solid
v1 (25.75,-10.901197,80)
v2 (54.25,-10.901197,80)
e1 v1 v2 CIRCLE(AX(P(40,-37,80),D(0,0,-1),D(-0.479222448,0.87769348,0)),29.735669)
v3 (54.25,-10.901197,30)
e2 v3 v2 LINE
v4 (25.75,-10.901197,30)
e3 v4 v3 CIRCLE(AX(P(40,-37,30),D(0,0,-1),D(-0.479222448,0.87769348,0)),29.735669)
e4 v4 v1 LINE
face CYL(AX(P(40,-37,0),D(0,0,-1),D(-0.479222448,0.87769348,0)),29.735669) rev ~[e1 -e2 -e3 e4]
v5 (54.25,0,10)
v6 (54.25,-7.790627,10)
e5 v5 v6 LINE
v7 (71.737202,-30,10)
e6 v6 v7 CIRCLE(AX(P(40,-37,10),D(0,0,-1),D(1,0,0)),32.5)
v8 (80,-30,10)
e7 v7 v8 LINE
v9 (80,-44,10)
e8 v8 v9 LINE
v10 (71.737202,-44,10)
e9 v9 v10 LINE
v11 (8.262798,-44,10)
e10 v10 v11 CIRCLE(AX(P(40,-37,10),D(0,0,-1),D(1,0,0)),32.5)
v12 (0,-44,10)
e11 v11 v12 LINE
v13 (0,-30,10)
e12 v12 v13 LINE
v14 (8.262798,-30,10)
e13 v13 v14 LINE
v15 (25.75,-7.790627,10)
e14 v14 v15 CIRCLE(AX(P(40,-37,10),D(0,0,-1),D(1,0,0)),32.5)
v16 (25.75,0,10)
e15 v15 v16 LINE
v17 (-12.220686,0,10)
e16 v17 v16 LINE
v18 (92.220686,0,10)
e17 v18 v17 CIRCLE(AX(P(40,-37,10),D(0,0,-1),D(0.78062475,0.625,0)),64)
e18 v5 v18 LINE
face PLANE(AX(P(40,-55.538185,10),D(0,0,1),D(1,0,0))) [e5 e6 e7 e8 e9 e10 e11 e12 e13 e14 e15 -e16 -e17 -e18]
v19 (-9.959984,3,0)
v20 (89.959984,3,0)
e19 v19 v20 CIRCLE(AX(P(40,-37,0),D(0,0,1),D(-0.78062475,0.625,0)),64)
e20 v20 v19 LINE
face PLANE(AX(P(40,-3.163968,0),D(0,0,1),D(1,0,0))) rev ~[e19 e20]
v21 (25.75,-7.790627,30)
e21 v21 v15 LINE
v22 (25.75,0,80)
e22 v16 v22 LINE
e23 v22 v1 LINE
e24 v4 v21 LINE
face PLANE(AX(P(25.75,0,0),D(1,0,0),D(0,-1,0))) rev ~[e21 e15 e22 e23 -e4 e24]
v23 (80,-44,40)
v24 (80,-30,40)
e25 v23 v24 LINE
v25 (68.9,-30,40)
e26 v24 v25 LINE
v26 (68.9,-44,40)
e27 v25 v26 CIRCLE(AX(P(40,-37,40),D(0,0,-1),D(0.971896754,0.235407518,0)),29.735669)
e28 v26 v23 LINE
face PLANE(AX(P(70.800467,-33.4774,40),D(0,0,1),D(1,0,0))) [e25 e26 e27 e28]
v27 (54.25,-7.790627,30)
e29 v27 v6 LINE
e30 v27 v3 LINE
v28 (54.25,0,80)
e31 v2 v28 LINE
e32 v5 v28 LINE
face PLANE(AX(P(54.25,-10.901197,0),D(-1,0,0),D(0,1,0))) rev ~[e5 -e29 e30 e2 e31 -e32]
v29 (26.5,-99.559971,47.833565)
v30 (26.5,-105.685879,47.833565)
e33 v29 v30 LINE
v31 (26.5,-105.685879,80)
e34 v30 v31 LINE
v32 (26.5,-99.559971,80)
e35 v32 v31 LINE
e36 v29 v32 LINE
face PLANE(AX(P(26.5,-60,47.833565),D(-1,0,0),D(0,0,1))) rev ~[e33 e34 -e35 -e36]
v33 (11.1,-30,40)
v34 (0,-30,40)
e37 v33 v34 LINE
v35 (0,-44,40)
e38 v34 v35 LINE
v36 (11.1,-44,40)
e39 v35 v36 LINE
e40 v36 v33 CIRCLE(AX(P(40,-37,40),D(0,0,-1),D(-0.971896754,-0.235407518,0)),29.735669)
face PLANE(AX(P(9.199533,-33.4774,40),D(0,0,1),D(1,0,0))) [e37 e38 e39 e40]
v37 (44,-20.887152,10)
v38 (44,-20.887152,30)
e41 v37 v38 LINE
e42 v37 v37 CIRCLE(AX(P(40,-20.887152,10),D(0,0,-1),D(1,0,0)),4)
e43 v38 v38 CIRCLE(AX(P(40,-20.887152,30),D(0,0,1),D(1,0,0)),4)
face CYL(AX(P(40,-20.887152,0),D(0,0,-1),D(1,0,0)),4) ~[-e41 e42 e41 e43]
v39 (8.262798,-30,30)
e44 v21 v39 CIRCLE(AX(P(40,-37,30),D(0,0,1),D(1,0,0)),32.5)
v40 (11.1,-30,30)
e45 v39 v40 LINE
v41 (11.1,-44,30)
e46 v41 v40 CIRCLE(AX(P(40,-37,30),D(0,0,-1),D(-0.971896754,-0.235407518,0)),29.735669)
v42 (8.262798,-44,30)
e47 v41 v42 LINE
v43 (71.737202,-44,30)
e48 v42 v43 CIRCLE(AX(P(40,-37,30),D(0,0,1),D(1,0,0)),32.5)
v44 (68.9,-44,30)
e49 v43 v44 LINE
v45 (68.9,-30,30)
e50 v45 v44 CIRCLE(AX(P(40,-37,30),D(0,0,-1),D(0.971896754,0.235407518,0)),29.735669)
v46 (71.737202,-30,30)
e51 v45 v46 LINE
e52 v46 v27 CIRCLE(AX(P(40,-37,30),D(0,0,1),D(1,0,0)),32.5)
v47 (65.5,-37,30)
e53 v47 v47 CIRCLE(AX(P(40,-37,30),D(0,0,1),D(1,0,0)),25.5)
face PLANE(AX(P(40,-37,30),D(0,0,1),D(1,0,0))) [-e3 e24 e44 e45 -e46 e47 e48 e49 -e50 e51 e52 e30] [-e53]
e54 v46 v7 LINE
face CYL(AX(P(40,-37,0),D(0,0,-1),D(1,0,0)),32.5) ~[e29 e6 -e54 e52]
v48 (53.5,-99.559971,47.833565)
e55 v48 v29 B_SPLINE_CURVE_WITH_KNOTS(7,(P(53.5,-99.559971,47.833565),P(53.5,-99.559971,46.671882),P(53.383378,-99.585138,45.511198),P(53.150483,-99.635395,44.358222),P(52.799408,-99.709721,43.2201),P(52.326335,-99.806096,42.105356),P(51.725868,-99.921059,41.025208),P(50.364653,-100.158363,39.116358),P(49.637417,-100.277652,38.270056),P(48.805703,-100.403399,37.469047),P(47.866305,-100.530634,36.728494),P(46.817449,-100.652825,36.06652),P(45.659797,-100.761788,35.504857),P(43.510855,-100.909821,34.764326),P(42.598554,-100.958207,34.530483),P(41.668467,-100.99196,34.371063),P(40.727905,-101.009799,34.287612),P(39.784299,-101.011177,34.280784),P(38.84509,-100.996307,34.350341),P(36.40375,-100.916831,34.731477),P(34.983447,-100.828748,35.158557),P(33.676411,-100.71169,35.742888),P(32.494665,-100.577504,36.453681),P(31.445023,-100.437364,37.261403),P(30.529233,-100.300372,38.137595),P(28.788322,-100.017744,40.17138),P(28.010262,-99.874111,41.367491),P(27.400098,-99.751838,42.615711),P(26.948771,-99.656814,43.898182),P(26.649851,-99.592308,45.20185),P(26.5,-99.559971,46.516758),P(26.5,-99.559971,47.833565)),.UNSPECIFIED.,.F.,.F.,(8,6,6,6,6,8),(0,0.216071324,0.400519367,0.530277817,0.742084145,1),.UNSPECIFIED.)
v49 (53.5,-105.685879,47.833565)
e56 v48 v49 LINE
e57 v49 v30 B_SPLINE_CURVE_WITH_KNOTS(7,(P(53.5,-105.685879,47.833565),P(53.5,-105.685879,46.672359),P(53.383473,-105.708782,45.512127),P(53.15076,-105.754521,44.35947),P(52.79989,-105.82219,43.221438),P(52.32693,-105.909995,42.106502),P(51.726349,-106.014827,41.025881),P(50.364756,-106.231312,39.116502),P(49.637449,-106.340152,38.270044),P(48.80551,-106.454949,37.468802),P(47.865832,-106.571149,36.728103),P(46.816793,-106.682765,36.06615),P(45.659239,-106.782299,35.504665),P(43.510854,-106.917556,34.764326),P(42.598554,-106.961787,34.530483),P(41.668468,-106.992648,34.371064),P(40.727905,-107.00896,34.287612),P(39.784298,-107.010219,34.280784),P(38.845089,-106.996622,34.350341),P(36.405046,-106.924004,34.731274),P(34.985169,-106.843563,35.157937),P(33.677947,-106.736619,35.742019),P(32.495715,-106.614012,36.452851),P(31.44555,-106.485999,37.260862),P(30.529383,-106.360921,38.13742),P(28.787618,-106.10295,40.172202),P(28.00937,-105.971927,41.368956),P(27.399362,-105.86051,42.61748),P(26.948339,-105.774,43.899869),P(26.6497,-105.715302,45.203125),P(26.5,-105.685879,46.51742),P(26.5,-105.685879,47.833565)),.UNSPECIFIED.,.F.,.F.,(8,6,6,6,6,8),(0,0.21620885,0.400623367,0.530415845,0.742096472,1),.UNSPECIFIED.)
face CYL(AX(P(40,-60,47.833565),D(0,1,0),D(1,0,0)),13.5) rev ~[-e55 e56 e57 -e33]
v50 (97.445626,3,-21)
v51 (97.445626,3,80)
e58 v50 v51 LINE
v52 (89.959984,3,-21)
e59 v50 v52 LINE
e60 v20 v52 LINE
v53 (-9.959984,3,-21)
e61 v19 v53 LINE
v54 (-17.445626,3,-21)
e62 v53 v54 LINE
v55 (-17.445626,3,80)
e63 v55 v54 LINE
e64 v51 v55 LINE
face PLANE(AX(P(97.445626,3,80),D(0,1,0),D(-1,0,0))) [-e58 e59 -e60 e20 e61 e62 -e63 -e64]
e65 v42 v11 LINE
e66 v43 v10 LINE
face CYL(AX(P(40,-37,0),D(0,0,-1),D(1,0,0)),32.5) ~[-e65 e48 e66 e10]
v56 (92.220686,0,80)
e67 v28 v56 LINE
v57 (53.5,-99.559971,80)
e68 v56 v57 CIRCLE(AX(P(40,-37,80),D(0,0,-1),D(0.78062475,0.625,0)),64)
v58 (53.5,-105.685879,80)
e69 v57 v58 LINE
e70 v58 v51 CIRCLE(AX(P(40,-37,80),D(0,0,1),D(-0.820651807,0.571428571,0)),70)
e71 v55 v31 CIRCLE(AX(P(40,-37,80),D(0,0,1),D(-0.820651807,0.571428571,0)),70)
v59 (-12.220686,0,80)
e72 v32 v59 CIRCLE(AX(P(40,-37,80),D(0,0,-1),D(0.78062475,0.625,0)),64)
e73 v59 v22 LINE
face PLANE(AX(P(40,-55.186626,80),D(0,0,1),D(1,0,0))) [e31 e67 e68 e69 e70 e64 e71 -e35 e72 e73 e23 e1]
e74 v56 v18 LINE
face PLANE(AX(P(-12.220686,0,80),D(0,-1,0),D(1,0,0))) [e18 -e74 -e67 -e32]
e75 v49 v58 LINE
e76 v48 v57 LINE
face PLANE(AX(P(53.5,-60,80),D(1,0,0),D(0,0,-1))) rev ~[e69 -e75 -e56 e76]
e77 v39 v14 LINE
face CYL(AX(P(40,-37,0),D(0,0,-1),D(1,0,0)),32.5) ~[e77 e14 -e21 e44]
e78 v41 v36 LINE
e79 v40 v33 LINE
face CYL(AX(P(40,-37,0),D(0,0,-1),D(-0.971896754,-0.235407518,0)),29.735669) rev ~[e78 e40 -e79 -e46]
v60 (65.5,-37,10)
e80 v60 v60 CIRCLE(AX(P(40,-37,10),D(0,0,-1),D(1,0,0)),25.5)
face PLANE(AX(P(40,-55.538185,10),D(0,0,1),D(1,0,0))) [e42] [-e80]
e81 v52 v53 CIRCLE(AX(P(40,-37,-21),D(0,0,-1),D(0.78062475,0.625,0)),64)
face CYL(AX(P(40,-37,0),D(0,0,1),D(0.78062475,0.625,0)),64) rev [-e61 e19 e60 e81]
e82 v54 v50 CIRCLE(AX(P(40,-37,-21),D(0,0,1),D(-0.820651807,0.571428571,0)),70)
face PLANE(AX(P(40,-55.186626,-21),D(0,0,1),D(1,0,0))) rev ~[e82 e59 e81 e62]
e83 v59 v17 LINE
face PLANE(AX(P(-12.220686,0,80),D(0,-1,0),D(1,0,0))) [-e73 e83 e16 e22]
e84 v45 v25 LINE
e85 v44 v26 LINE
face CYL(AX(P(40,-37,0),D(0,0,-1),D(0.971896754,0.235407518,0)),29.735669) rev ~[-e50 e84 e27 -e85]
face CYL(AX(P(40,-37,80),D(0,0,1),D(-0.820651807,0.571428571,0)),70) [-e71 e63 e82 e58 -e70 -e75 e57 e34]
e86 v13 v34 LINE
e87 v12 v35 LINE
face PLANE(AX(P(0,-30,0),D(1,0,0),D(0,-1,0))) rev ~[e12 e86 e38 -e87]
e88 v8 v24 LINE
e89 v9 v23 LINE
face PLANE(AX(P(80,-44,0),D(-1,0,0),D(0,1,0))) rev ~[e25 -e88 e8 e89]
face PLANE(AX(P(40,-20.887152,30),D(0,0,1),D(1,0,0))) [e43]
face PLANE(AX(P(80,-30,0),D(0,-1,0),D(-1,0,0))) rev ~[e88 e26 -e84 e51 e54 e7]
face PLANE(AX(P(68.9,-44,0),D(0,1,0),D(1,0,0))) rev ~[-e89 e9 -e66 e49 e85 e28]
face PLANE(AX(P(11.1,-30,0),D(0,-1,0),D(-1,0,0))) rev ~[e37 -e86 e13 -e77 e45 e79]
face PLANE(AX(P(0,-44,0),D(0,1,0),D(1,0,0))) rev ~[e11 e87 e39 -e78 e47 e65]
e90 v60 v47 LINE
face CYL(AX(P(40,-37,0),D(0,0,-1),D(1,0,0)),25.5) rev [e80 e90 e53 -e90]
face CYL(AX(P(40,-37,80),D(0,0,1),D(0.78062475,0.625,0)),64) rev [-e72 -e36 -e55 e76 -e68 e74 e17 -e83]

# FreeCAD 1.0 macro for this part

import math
import FreeCAD as App
import Part
import Sketcher
from FreeCAD import Vector
Q = App.Units.Quantity

doc = App.newDocument("Part")
params = doc.addObject("Spreadsheet::Sheet", "Params")
for row, (alias, value) in enumerate([
    ("sketch1_radius", "64 mm"),
    ("sketch1_radius2", "70 mm"),
    ("pad1_length", "21 mm"),
    ("sketch2_radius", "64 mm"),
    ("pad2_length", "10 mm"),
    ("sketch3_diameter", "65 mm"),
    ("sketch3_diameter2", "51 mm"),
    ("sketch3_diameter3", "8 mm"),
    ("pad3_length", "30 mm"),
    ("sketch4_height", "14 mm"),
    ("sketch4_width", "11.1 mm"),
    ("pad4_length", "40 mm"),
    ("sketch5_width", "28.5 mm"),
    ("pad5_length", "80 mm"),
    ("sketch6_radius", "70 mm"),
    ("sketch6_radius2", "64 mm"),
    ("pad6_length", "80 mm"),
    ("sketch7_radius", "13.5 mm"),
    ("pocket1_length", "99 mm"),
], start=1):
    params.set(f"A{row}", alias)
    params.set(f"B{row}", "=" + value)
    params.setAlias(f"B{row}", alias)

body = doc.addObject("PartDesign::Body", "Body")

sketch1 = body.newObject("Sketcher::SketchObject", "Sketch")
sketch1.AttachmentSupport = (doc.getObject("XY_Plane"), [""])
sketch1.MapMode = "FlatFace"
sketch1.addGeometry(Part.ArcOfCircle(Part.Circle(Vector(40, -37, 0), Vector(0, 0, 1), 64), math.radians(141.317813), math.radians(398.682187)), False)
sketch1.addGeometry(Part.LineSegment(Vector(-9.959984, 3, 0), Vector(-17.445626, 3, 0)), False)
sketch1.addGeometry(Part.ArcOfCircle(Part.Circle(Vector(40, -37, 0), Vector(0, 0, 1), 70), math.radians(145.150095), math.radians(394.849905)), False)
sketch1.addGeometry(Part.LineSegment(Vector(97.445626, 3, 0), Vector(89.959984, 3, 0)), False)
sketch1.addConstraint(Sketcher.Constraint("Coincident", 0, 1, 1, 1))
sketch1.addConstraint(Sketcher.Constraint("Coincident", 1, 2, 2, 1))
sketch1.addConstraint(Sketcher.Constraint("Coincident", 2, 2, 3, 1))
sketch1.addConstraint(Sketcher.Constraint("Coincident", 3, 2, 0, 2))
sketch1.addConstraint(Sketcher.Constraint("Horizontal", 1))
sketch1.addConstraint(Sketcher.Constraint("Horizontal", 3))
sketch1.addConstraint(Sketcher.Constraint("Coincident", 2, 3, 0, 3))
sketch1.addConstraint(Sketcher.Constraint("Horizontal", 1, 2, 2, 2))
sketch1.addConstraint(Sketcher.Constraint("Radius", 0, Q("64 mm")))
sketch1.addConstraint(Sketcher.Constraint("Radius", 2, Q("70 mm")))
sketch1.addConstraint(Sketcher.Constraint("DistanceX", -1, 1, 0, 3, Q("40 mm")))
sketch1.addConstraint(Sketcher.Constraint("DistanceY", 0, 3, -1, 1, Q("37 mm")))
sketch1.addConstraint(Sketcher.Constraint("DistanceY", -1, 1, 0, 1, Q("3 mm")))
sketch1.setExpression("Constraints[8]", "Params.sketch1_radius")
sketch1.setExpression("Constraints[9]", "Params.sketch1_radius2")
pad1 = body.newObject("PartDesign::Pad", "Pad")
pad1.Profile = sketch1
pad1.setExpression("Length", "Params.pad1_length")
pad1.Reversed = True
body2 = doc.addObject("PartDesign::Body", "Body001")

sketch2 = body2.newObject("Sketcher::SketchObject", "Sketch001")
sketch2.AttachmentSupport = (doc.getObject("XY_Plane001"), [""])
sketch2.MapMode = "FlatFace"
sketch2.addGeometry(Part.LineSegment(Vector(89.959984, 3, 0), Vector(-9.959984, 3, 0)), False)
sketch2.addGeometry(Part.ArcOfCircle(Part.Circle(Vector(40, -37, 0), Vector(0, 0, 1), 64), math.radians(141.317813), math.radians(398.682187)), False)
sketch2.addConstraint(Sketcher.Constraint("Coincident", 0, 1, 1, 2))
sketch2.addConstraint(Sketcher.Constraint("Coincident", 1, 1, 0, 2))
sketch2.addConstraint(Sketcher.Constraint("Horizontal", 0))
sketch2.addConstraint(Sketcher.Constraint("Radius", 1, Q("64 mm")))
sketch2.addConstraint(Sketcher.Constraint("DistanceX", -1, 1, 1, 3, Q("40 mm")))
sketch2.addConstraint(Sketcher.Constraint("DistanceY", 1, 3, -1, 1, Q("37 mm")))
sketch2.addConstraint(Sketcher.Constraint("DistanceY", -1, 1, 0, 1, Q("3 mm")))
sketch2.setExpression("Constraints[3]", "Params.sketch2_radius")
pad2 = body2.newObject("PartDesign::Pad", "Pad001")
pad2.Profile = sketch2
pad2.setExpression("Length", "Params.pad2_length")

sketch3 = body2.newObject("Sketcher::SketchObject", "Sketch002")
sketch3.AttachmentSupport = (doc.getObject("XY_Plane001"), [""])
sketch3.MapMode = "FlatFace"
sketch3.addGeometry(Part.Circle(Vector(40, -37, 0), Vector(0, 0, 1), 32.5), False)
sketch3.addGeometry(Part.Circle(Vector(40, -37, 0), Vector(0, 0, 1), 25.5), False)
sketch3.addGeometry(Part.Circle(Vector(40, -20.887152, 0), Vector(0, 0, 1), 4), False)
sketch3.addConstraint(Sketcher.Constraint("Coincident", 1, 3, 0, 3))
sketch3.addConstraint(Sketcher.Constraint("Vertical", 1, 3, 2, 3))
sketch3.addConstraint(Sketcher.Constraint("Diameter", 0, Q("65 mm")))
sketch3.addConstraint(Sketcher.Constraint("Diameter", 1, Q("51 mm")))
sketch3.addConstraint(Sketcher.Constraint("Diameter", 2, Q("8 mm")))
sketch3.addConstraint(Sketcher.Constraint("DistanceX", -1, 1, 0, 3, Q("40 mm")))
sketch3.addConstraint(Sketcher.Constraint("DistanceY", 0, 3, -1, 1, Q("37 mm")))
sketch3.addConstraint(Sketcher.Constraint("DistanceY", 2, 3, -1, 1, Q("20.887152 mm")))
sketch3.setExpression("Constraints[2]", "Params.sketch3_diameter")
sketch3.setExpression("Constraints[3]", "Params.sketch3_diameter2")
sketch3.setExpression("Constraints[4]", "Params.sketch3_diameter3")
pad3 = body2.newObject("PartDesign::Pad", "Pad002")
pad3.Profile = sketch3
pad3.setExpression("Length", "Params.pad3_length")

sketch4 = body2.newObject("Sketcher::SketchObject", "Sketch003")
sketch4.AttachmentSupport = (doc.getObject("XY_Plane001"), [""])
sketch4.MapMode = "FlatFace"
sketch4.addGeometry(Part.LineSegment(Vector(11.1, -30, 0), Vector(0, -30, 0)), False)
sketch4.addGeometry(Part.LineSegment(Vector(0, -30, 0), Vector(0, -44, 0)), False)
sketch4.addGeometry(Part.LineSegment(Vector(0, -44, 0), Vector(11.1, -44, 0)), False)
sketch4.addGeometry(Part.ArcOfCircle(Part.Circle(Vector(40, -37, 0), Vector(0, 0, 1), 29.735669), math.radians(166.384354), math.radians(193.615646)), False)
sketch4.addGeometry(Part.LineSegment(Vector(80, -44, 0), Vector(80, -30, 0)), False)
sketch4.addGeometry(Part.LineSegment(Vector(80, -30, 0), Vector(68.9, -30, 0)), False)
sketch4.addGeometry(Part.ArcOfCircle(Part.Circle(Vector(40, -37, 0), Vector(0, 0, 1), 29.735669), math.radians(-13.615646), math.radians(13.615646)), False)
sketch4.addGeometry(Part.LineSegment(Vector(68.9, -44, 0), Vector(80, -44, 0)), False)
sketch4.addConstraint(Sketcher.Constraint("Coincident", 0, 2, 1, 1))
sketch4.addConstraint(Sketcher.Constraint("Coincident", 1, 2, 2, 1))
sketch4.addConstraint(Sketcher.Constraint("Coincident", 2, 2, 3, 2))
sketch4.addConstraint(Sketcher.Constraint("Coincident", 3, 1, 0, 1))
sketch4.addConstraint(Sketcher.Constraint("Coincident", 4, 2, 5, 1))
sketch4.addConstraint(Sketcher.Constraint("Coincident", 5, 2, 6, 2))
sketch4.addConstraint(Sketcher.Constraint("Coincident", 6, 1, 7, 1))
sketch4.addConstraint(Sketcher.Constraint("Coincident", 7, 2, 4, 1))
sketch4.addConstraint(Sketcher.Constraint("Horizontal", 0))
sketch4.addConstraint(Sketcher.Constraint("Vertical", 1))
sketch4.addConstraint(Sketcher.Constraint("Horizontal", 2))
sketch4.addConstraint(Sketcher.Constraint("Vertical", 4))
sketch4.addConstraint(Sketcher.Constraint("Horizontal", 5))
sketch4.addConstraint(Sketcher.Constraint("Horizontal", 7))
sketch4.addConstraint(Sketcher.Constraint("Coincident", 6, 3, 3, 3))
sketch4.addConstraint(Sketcher.Constraint("Equal", 3, 6))
sketch4.addConstraint(Sketcher.Constraint("PointOnObject", 0, 2, -2))
sketch4.addConstraint(Sketcher.Constraint("Horizontal", 3, 1, 4, 2))
sketch4.addConstraint(Sketcher.Constraint("Horizontal", 2, 2, 6, 1))
sketch4.addConstraint(Sketcher.Constraint("Vertical", 2, 2, 3, 1))
sketch4.addConstraint(Sketcher.Constraint("Equal", 2, 5))
sketch4.addConstraint(Sketcher.Constraint("DistanceY", 1, 2, 1, 1, Q("14 mm")))
sketch4.addConstraint(Sketcher.Constraint("DistanceX", 0, 2, 0, 1, Q("11.1 mm")))
sketch4.addConstraint(Sketcher.Constraint("DistanceX", -1, 1, 3, 3, Q("40 mm")))
sketch4.addConstraint(Sketcher.Constraint("DistanceY", 3, 3, -1, 1, Q("37 mm")))
sketch4.setExpression("Constraints[21]", "Params.sketch4_height")
sketch4.setExpression("Constraints[22]", "Params.sketch4_width")
pad4 = body2.newObject("PartDesign::Pad", "Pad003")
pad4.Profile = sketch4
pad4.setExpression("Length", "Params.pad4_length")

sketch5 = body2.newObject("Sketcher::SketchObject", "Sketch004")
sketch5.AttachmentSupport = (doc.getObject("XY_Plane001"), [""])
sketch5.MapMode = "FlatFace"
sketch5.addGeometry(Part.LineSegment(Vector(54.25, 0, 0), Vector(25.75, 0, 0)), False)
sketch5.addGeometry(Part.LineSegment(Vector(25.75, 0, 0), Vector(25.75, -10.901197, 0)), False)
sketch5.addGeometry(Part.ArcOfCircle(Part.Circle(Vector(40, -37, 0), Vector(0, 0, 1), 29.735669), math.radians(61.365369), math.radians(118.634631)), False)
sketch5.addGeometry(Part.LineSegment(Vector(54.25, -10.901197, 0), Vector(54.25, 0, 0)), False)
sketch5.addConstraint(Sketcher.Constraint("Coincident", 0, 2, 1, 1))
sketch5.addConstraint(Sketcher.Constraint("Coincident", 1, 2, 2, 2))
sketch5.addConstraint(Sketcher.Constraint("Coincident", 2, 1, 3, 1))
sketch5.addConstraint(Sketcher.Constraint("Coincident", 3, 2, 0, 1))
sketch5.addConstraint(Sketcher.Constraint("Horizontal", 0))
sketch5.addConstraint(Sketcher.Constraint("Vertical", 1))
sketch5.addConstraint(Sketcher.Constraint("Vertical", 3))
sketch5.addConstraint(Sketcher.Constraint("PointOnObject", 0, 2, -1))
sketch5.addConstraint(Sketcher.Constraint("Horizontal", 1, 2, 2, 1))
sketch5.addConstraint(Sketcher.Constraint("DistanceX", 0, 2, 0, 1, Q("28.5 mm")))
sketch5.addConstraint(Sketcher.Constraint("DistanceX", -1, 1, 2, 3, Q("40 mm")))
sketch5.addConstraint(Sketcher.Constraint("DistanceY", 2, 3, -1, 1, Q("37 mm")))
sketch5.addConstraint(Sketcher.Constraint("Radius", 2, Q("29.735669 mm")))
sketch5.setExpression("Constraints[9]", "Params.sketch5_width")
pad5 = body2.newObject("PartDesign::Pad", "Pad004")
pad5.Profile = sketch5
pad5.setExpression("Length", "Params.pad5_length")
body.AllowCompound = True
doc.recompute()

boolean = body.newObject("PartDesign::Boolean", "Boolean")
boolean.Type = "Fuse"
boolean.addObjects([body2])

sketch6 = body.newObject("Sketcher::SketchObject", "Sketch005")
sketch6.AttachmentSupport = (doc.getObject("XY_Plane"), [""])
sketch6.MapMode = "FlatFace"
sketch6.AttachmentOffset = App.Placement(Vector(0, 0, 80), App.Rotation())
sketch6.addGeometry(Part.ArcOfCircle(Part.Circle(Vector(40, -37, 0), Vector(0, 0, 1), 70), math.radians(145.150095), math.radians(394.849905)), False)
sketch6.addGeometry(Part.LineSegment(Vector(97.445626, 3, 0), Vector(-17.445626, 3, 0)), False)
sketch6.addGeometry(Part.ArcOfCircle(Part.Circle(Vector(40, -37, 0), Vector(0, 0, 1), 64), math.radians(144.681227), math.radians(395.318773)), False)
sketch6.addGeometry(Part.LineSegment(Vector(-12.220686, 0, 0), Vector(92.220686, 0, 0)), False)
sketch6.addConstraint(Sketcher.Constraint("Coincident", 0, 1, 1, 2))
sketch6.addConstraint(Sketcher.Constraint("Coincident", 1, 1, 0, 2))
sketch6.addConstraint(Sketcher.Constraint("Coincident", 2, 1, 3, 1))
sketch6.addConstraint(Sketcher.Constraint("Coincident", 3, 2, 2, 2))
sketch6.addConstraint(Sketcher.Constraint("Horizontal", 1))
sketch6.addConstraint(Sketcher.Constraint("Horizontal", 3))
sketch6.addConstraint(Sketcher.Constraint("Coincident", 2, 3, 0, 3))
sketch6.addConstraint(Sketcher.Constraint("PointOnObject", 2, 1, -1))
sketch6.addConstraint(Sketcher.Constraint("Radius", 0, Q("70 mm")))
sketch6.addConstraint(Sketcher.Constraint("Radius", 2, Q("64 mm")))
sketch6.addConstraint(Sketcher.Constraint("DistanceX", -1, 1, 0, 3, Q("40 mm")))
sketch6.addConstraint(Sketcher.Constraint("DistanceY", 0, 3, -1, 1, Q("37 mm")))
sketch6.addConstraint(Sketcher.Constraint("DistanceY", -1, 1, 0, 1, Q("3 mm")))
sketch6.setExpression("Constraints[8]", "Params.sketch6_radius")
sketch6.setExpression("Constraints[9]", "Params.sketch6_radius2")
pad6 = body.newObject("PartDesign::Pad", "Pad005")
pad6.Profile = sketch6
pad6.setExpression("Length", "Params.pad6_length")
pad6.Reversed = True

sketch7 = body.newObject("Sketcher::SketchObject", "Sketch006")
sketch7.AttachmentSupport = (doc.getObject("XZ_Plane"), [""])
sketch7.MapMode = "FlatFace"
sketch7.AttachmentOffset = App.Placement(Vector(0, 0, 60), App.Rotation())
sketch7.addGeometry(Part.LineSegment(Vector(53.5, 47.833565, 0), Vector(53.5, 80, 0)), False)
sketch7.addGeometry(Part.ArcOfCircle(Part.Circle(Vector(40, 80, 0), Vector(0, 0, 1), 13.5), math.radians(0), math.radians(180)), False)
sketch7.addGeometry(Part.LineSegment(Vector(26.5, 80, 0), Vector(26.5, 47.833565, 0)), False)
sketch7.addGeometry(Part.ArcOfCircle(Part.Circle(Vector(40, 47.833565, 0), Vector(0, 0, 1), 13.5), math.radians(180), math.radians(360)), False)
sketch7.addConstraint(Sketcher.Constraint("Tangent", 0, 2, 1, 1))
sketch7.addConstraint(Sketcher.Constraint("Tangent", 1, 2, 2, 1))
sketch7.addConstraint(Sketcher.Constraint("Tangent", 2, 2, 3, 1))
sketch7.addConstraint(Sketcher.Constraint("Tangent", 3, 2, 0, 1))
sketch7.addConstraint(Sketcher.Constraint("Vertical", 0))
sketch7.addConstraint(Sketcher.Constraint("Vertical", 2))
sketch7.addConstraint(Sketcher.Constraint("Radius", 1, Q("13.5 mm")))
sketch7.addConstraint(Sketcher.Constraint("DistanceX", -1, 1, 1, 3, Q("40 mm")))
sketch7.addConstraint(Sketcher.Constraint("DistanceY", -1, 1, 1, 3, Q("80 mm")))
sketch7.addConstraint(Sketcher.Constraint("DistanceY", 0, 1, 0, 2, Q("32.166435 mm")))
sketch7.setExpression("Constraints[6]", "Params.sketch7_radius")
pocket1 = body.newObject("PartDesign::Pocket", "Pocket")
pocket1.Profile = sketch7
pocket1.setExpression("Length", "Params.pocket1_length")
pocket1.Reversed = True

doc.recompute()
